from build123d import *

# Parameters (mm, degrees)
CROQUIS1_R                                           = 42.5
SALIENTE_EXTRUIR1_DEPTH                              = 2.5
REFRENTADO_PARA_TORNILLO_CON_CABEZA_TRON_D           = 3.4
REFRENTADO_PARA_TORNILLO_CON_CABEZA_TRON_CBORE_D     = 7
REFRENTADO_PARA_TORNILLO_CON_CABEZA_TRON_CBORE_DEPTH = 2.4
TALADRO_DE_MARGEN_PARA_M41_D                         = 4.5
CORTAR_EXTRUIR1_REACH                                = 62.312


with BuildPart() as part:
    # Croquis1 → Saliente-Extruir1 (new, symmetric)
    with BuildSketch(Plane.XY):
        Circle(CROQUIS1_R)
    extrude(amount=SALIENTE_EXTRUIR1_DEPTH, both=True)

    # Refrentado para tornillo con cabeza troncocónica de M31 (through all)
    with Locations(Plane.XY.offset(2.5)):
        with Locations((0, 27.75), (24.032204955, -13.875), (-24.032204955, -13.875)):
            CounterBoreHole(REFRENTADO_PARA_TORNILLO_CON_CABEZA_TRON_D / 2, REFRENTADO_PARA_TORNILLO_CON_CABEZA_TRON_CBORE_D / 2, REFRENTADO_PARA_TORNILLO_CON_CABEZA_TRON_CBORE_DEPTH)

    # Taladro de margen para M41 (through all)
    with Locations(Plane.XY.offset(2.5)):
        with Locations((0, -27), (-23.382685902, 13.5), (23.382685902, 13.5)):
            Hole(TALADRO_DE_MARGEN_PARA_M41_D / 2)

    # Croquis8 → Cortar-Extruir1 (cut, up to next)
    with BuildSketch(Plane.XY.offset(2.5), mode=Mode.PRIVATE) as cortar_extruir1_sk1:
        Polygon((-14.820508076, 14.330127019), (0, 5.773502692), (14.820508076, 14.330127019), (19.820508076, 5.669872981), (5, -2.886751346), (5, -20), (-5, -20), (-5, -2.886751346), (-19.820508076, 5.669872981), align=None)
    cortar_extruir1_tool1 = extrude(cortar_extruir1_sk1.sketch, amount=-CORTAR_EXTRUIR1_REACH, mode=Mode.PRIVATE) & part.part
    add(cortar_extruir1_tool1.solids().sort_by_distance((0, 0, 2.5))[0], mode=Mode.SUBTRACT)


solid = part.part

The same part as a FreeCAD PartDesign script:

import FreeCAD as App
import Part
import Sketcher
from FreeCAD import Vector
Q = App.Units.Quantity

doc = App.newDocument("Part")
body = doc.addObject("PartDesign::Body", "Body")

# Sketch on XY plane
sketch1 = body.newObject("Sketcher::SketchObject", "Sketch")
sketch1.AttachmentSupport = (doc.getObject("XY_Plane"), [""])
sketch1.MapMode = "FlatFace"
sketch1.addGeometry(Part.Circle(Vector(0, 0, 0), Vector(0, 0, 1), 42.5), False)
sketch1.addConstraint(Sketcher.Constraint("Coincident", 0, 3, -1, 1))
sketch1.addConstraint(Sketcher.Constraint("Diameter", 0, 85.0))
pad1 = body.newObject("PartDesign::Pad", "Pad")
pad1.Profile = sketch1
pad1.Length = 5
pad1.Midplane = True

# Sketch on XY plane
sketch2 = body.newObject("Sketcher::SketchObject", "Sketch001")
sketch2.AttachmentSupport = (doc.getObject("XY_Plane"), [""])
sketch2.MapMode = "FlatFace"
sketch2.AttachmentOffset = App.Placement(Vector(0, 0, 2.5), App.Rotation())
sketch2.addGeometry(Part.Circle(Vector(0, 27.75, 0), Vector(0, 0, 1), 1.7), False)
sketch2.addGeometry(Part.Circle(Vector(24.032205, -13.875, 0), Vector(0, 0, 1), 1.7), False)
sketch2.addGeometry(Part.Circle(Vector(-24.032205, -13.875, 0), Vector(0, 0, 1), 1.7), False)
sketch2.addConstraint(Sketcher.Constraint("Equal", 0, 1))
sketch2.addConstraint(Sketcher.Constraint("Equal", 1, 2))
sketch2.addConstraint(Sketcher.Constraint("Symmetric", 1, 3, 2, 3, -2))
sketch2.addConstraint(Sketcher.Constraint("PointOnObject", 0, 3, -2))
sketch2.addConstraint(Sketcher.Constraint("Diameter", 0, 3.4))
sketch2.addConstraint(Sketcher.Constraint("DistanceY", -1, 1, 0, 3, 27.75))
sketch2.addConstraint(Sketcher.Constraint("DistanceY", 1, 3, -1, 1, 13.875))
sketch2.addConstraint(Sketcher.Constraint("DistanceX", 2, 3, 1, 3, 48.06441))
doc.recompute()
hole = body.newObject("PartDesign::Hole", "Hole")
hole.Profile = sketch2
hole.ThreadType = "None"
hole.Diameter = 3.4
hole.DepthType = "ThroughAll"
hole.HoleCutType = "Counterbore"
hole.HoleCutDiameter = 7
hole.HoleCutDepth = 2.4

# Sketch on XY plane
sketch3 = body.newObject("Sketcher::SketchObject", "Sketch002")
sketch3.AttachmentSupport = (doc.getObject("XY_Plane"), [""])
sketch3.MapMode = "FlatFace"
sketch3.AttachmentOffset = App.Placement(Vector(0, 0, 2.5), App.Rotation())
sketch3.addGeometry(Part.Circle(Vector(0, -27, 0), Vector(0, 0, 1), 2.25), False)
sketch3.addGeometry(Part.Circle(Vector(-23.382686, 13.5, 0), Vector(0, 0, 1), 2.25), False)
sketch3.addGeometry(Part.Circle(Vector(23.382686, 13.5, 0), Vector(0, 0, 1), 2.25), False)
sketch3.addConstraint(Sketcher.Constraint("Equal", 0, 1))
sketch3.addConstraint(Sketcher.Constraint("Equal", 1, 2))
sketch3.addConstraint(Sketcher.Constraint("Symmetric", 1, 3, 2, 3, -2))
sketch3.addConstraint(Sketcher.Constraint("PointOnObject", 0, 3, -2))
sketch3.addConstraint(Sketcher.Constraint("Diameter", 0, 4.5))
sketch3.addConstraint(Sketcher.Constraint("DistanceY", 0, 3, -1, 1, 27.0))
sketch3.addConstraint(Sketcher.Constraint("DistanceY", -1, 1, 1, 3, 13.5))
sketch3.addConstraint(Sketcher.Constraint("DistanceX", 1, 3, 2, 3, 46.765372))
doc.recompute()
hole2 = body.newObject("PartDesign::Hole", "Hole001")
hole2.Profile = sketch3
hole2.ThreadType = "None"
hole2.Diameter = 4.5
hole2.DepthType = "ThroughAll"

# Sketch on XY plane
sketch4 = body.newObject("Sketcher::SketchObject", "Sketch003")
sketch4.AttachmentSupport = (doc.getObject("XY_Plane"), [""])
sketch4.MapMode = "FlatFace"
sketch4.AttachmentOffset = App.Placement(Vector(0, 0, 2.5), App.Rotation())
sketch4.addGeometry(Part.LineSegment(Vector(0, 5.773503, 0), Vector(-14.820508, 14.330127, 0)), False)
sketch4.addGeometry(Part.LineSegment(Vector(-14.820508, 14.330127, 0), Vector(-19.820508, 5.669873, 0)), False)
sketch4.addGeometry(Part.LineSegment(Vector(-19.820508, 5.669873, 0), Vector(-5, -2.886751, 0)), False)
sketch4.addGeometry(Part.LineSegment(Vector(-5, -2.886751, 0), Vector(-5, -20, 0)), False)
sketch4.addGeometry(Part.LineSegment(Vector(-5, -20, 0), Vector(5, -20, 0)), False)
sketch4.addGeometry(Part.LineSegment(Vector(5, -20, 0), Vector(5, -2.886751, 0)), False)
sketch4.addGeometry(Part.LineSegment(Vector(5, -2.886751, 0), Vector(19.820508, 5.669873, 0)), False)
sketch4.addGeometry(Part.LineSegment(Vector(19.820508, 5.669873, 0), Vector(14.820508, 14.330127, 0)), False)
sketch4.addGeometry(Part.LineSegment(Vector(14.820508, 14.330127, 0), Vector(0, 5.773503, 0)), False)
sketch4.addConstraint(Sketcher.Constraint("Coincident", 0, 2, 1, 1))
sketch4.addConstraint(Sketcher.Constraint("Coincident", 1, 2, 2, 1))
sketch4.addConstraint(Sketcher.Constraint("Coincident", 2, 2, 3, 1))
sketch4.addConstraint(Sketcher.Constraint("Coincident", 3, 2, 4, 1))
sketch4.addConstraint(Sketcher.Constraint("Coincident", 4, 2, 5, 1))
sketch4.addConstraint(Sketcher.Constraint("Coincident", 5, 2, 6, 1))
sketch4.addConstraint(Sketcher.Constraint("Coincident", 6, 2, 7, 1))
sketch4.addConstraint(Sketcher.Constraint("Coincident", 7, 2, 8, 1))
sketch4.addConstraint(Sketcher.Constraint("Coincident", 8, 2, 0, 1))
sketch4.addConstraint(Sketcher.Constraint("Vertical", 3))
sketch4.addConstraint(Sketcher.Constraint("Horizontal", 4))
sketch4.addConstraint(Sketcher.Constraint("Vertical", 5))
sketch4.addConstraint(Sketcher.Constraint("Symmetric", 2, 2, 5, 2, -2))
sketch4.addConstraint(Sketcher.Constraint("Symmetric", 1, 2, 6, 2, -2))
sketch4.addConstraint(Sketcher.Constraint("Symmetric", 0, 2, 7, 2, -2))
sketch4.addConstraint(Sketcher.Constraint("PointOnObject", 8, 2, -2))
sketch4.addConstraint(Sketcher.Constraint("Perpendicular", 0, 1))
sketch4.addConstraint(Sketcher.Constraint("Perpendicular", 1, 2))
sketch4.addConstraint(Sketcher.Constraint("Equal", 0, 2))
sketch4.addConstraint(Sketcher.Constraint("DistanceX", 4, 1, 4, 2, 10.0))
sketch4.addConstraint(Sketcher.Constraint("Angle", 0, Q("150 deg")))
sketch4.addConstraint(Sketcher.Constraint("DistanceY", 3, 2, -1, 1, 20.0))
sketch4.addConstraint(Sketcher.Constraint("DistanceY", 3, 2, 3, 1, 17.113249))
sketch4.addConstraint(Sketcher.Constraint("Distance", 0, 17.113249))
pocket1 = body.newObject("PartDesign::Pocket", "Pocket")
pocket1.Profile = sketch4
pocket1.Type = "UpToFirst"

doc.recompute()
